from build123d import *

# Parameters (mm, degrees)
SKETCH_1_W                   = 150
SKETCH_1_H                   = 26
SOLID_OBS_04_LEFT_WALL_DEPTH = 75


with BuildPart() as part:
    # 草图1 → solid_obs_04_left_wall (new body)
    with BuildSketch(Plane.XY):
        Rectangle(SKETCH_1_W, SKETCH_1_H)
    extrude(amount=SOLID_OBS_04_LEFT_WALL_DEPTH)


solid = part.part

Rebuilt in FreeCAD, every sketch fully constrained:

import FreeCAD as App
import Part
import Sketcher


def add_polygon(sketch, points):
    """Adds a closed chain of lines whose ends are joined by coincident constraints."""
    first, n = sketch.GeometryCount, len(points)
    for a, b in zip(points, points[1:] + points[:1]):
        sketch.addGeometry(Part.LineSegment(App.Vector(*a, 0), App.Vector(*b, 0)), False)
    for i in range(n):
        sketch.addConstraint(Sketcher.Constraint("Coincident", first + i, 2, first + (i + 1) % n, 1))

doc = App.newDocument("Part")
params = doc.addObject("Spreadsheet::Sheet", "Params")
for row, (alias, value) in enumerate([
    ("sketch1_width", "150 mm"),
    ("sketch1_height", "26 mm"),
    ("pad1_length", "75 mm"),
], start=1):
    params.set(f"A{row}", alias)
    params.set(f"B{row}", "=" + value)
    params.setAlias(f"B{row}", alias)

body = doc.addObject("PartDesign::Body", "Body")

sketch1 = body.newObject("Sketcher::SketchObject", "Sketch")
sketch1.AttachmentSupport = (doc.getObject("XY_Plane"), [""])
sketch1.MapMode = "FlatFace"
add_polygon(sketch1, [(-75, 13), (-75, -13), (75, -13), (75, 13)])
sketch1.addConstraint(Sketcher.Constraint("Vertical", 0))
sketch1.addConstraint(Sketcher.Constraint("Horizontal", 1))
sketch1.addConstraint(Sketcher.Constraint("Vertical", 2))
sketch1.addConstraint(Sketcher.Constraint("Horizontal", 3))
sketch1.addConstraint(Sketcher.Constraint("Symmetric", 0, 2, 2, 2, -1, 1))
sketch1.addConstraint(Sketcher.Constraint("DistanceX", 1, 1, 1, 2, 150.0))
sketch1.addConstraint(Sketcher.Constraint("DistanceY", 0, 2, 0, 1, 26.0))
sketch1.setExpression("Constraints[9]", "Params.sketch1_width")
sketch1.setExpression("Constraints[10]", "Params.sketch1_height")
pad1 = body.newObject("PartDesign::Pad", "Pad")
pad1.Profile = sketch1
pad1.setExpression("Length", "Params.pad1_length")

doc.recompute()
